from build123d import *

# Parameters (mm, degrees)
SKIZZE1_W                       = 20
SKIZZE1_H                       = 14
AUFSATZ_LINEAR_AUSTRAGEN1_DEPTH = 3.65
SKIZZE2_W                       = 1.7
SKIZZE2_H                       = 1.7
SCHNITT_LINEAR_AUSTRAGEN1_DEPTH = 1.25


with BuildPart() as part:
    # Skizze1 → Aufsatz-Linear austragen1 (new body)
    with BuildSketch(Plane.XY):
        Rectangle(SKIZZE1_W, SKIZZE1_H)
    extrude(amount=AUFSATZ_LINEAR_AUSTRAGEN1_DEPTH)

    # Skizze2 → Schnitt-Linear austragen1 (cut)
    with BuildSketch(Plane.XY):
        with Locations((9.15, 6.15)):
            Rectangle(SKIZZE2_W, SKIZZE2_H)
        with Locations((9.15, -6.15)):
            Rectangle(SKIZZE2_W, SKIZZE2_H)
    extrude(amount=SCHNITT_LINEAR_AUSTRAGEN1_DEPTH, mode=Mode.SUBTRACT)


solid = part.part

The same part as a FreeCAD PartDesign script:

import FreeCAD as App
import Part
import Sketcher

doc = App.newDocument("Part")
params = doc.addObject("Spreadsheet::Sheet", "Params")
for row, (alias, value) in enumerate([
    ("sketch1_width", "20 mm"),
    ("sketch1_height", "14 mm"),
    ("pad1_length", "3.65 mm"),
    ("sketch2_width", "1.7 mm"),
    ("pocket1_length", "1.25 mm"),
], start=1):
    params.set(f"A{row}", alias)
    params.set(f"B{row}", "=" + value)
    params.setAlias(f"B{row}", alias)

body = doc.addObject("PartDesign::Body", "Body")

sketch1 = doc.addObject("Sketcher::SketchObject", "Sketch")
body.addObject(sketch1)
sketch1.AttachmentSupport = (doc.XY_Plane, [""])
sketch1.MapMode = "FlatFace"
sketch1.addGeometry([
    Part.LineSegment(App.Vector(-10, 7, 0), App.Vector(-10, -7, 0)),
    Part.LineSegment(App.Vector(-10, -7, 0), App.Vector(10, -7, 0)),
    Part.LineSegment(App.Vector(10, -7, 0), App.Vector(10, 7, 0)),
    Part.LineSegment(App.Vector(10, 7, 0), App.Vector(-10, 7, 0)),
], False)
sketch1.addConstraint([
    Sketcher.Constraint("Coincident", 0, 2, 1, 1),
    Sketcher.Constraint("Coincident", 1, 2, 2, 1),
    Sketcher.Constraint("Coincident", 2, 2, 3, 1),
    Sketcher.Constraint("Coincident", 3, 2, 0, 1),
    Sketcher.Constraint("Vertical", 0),
    Sketcher.Constraint("Horizontal", 1),
    Sketcher.Constraint("Vertical", 2),
    Sketcher.Constraint("Horizontal", 3),
    Sketcher.Constraint("Symmetric", 0, 2, 2, 2, -1, 1),
    Sketcher.Constraint("DistanceX", 1, 1, 1, 2, 20.0),
    Sketcher.Constraint("DistanceY", 0, 2, 0, 1, 14.0),
])
sketch1.setExpression("Constraints[9]", "Params.sketch1_width")
sketch1.setExpression("Constraints[10]", "Params.sketch1_height")
pad1 = doc.addObject("PartDesign::Pad", "Pad")
body.addObject(pad1)
pad1.Profile = sketch1
pad1.setExpression("Length", "Params.pad1_length")

sketch2 = doc.addObject("Sketcher::SketchObject", "Sketch001")
body.addObject(sketch2)
sketch2.AttachmentSupport = (doc.XY_Plane, [""])
sketch2.MapMode = "FlatFace"
sketch2.addGeometry([
    Part.LineSegment(App.Vector(8.3, 7, 0), App.Vector(8.3, 5.3, 0)),
    Part.LineSegment(App.Vector(8.3, 5.3, 0), App.Vector(10, 5.3, 0)),
    Part.LineSegment(App.Vector(10, 5.3, 0), App.Vector(10, 7, 0)),
    Part.LineSegment(App.Vector(10, 7, 0), App.Vector(8.3, 7, 0)),
    Part.LineSegment(App.Vector(8.3, -5.3, 0), App.Vector(8.3, -7, 0)),
    Part.LineSegment(App.Vector(8.3, -7, 0), App.Vector(10, -7, 0)),
    Part.LineSegment(App.Vector(10, -7, 0), App.Vector(10, -5.3, 0)),
    Part.LineSegment(App.Vector(10, -5.3, 0), App.Vector(8.3, -5.3, 0)),
], False)
sketch2.addConstraint([
    Sketcher.Constraint("Coincident", 0, 2, 1, 1),
    Sketcher.Constraint("Coincident", 1, 2, 2, 1),
    Sketcher.Constraint("Coincident", 2, 2, 3, 1),
    Sketcher.Constraint("Coincident", 3, 2, 0, 1),
    Sketcher.Constraint("Coincident", 4, 2, 5, 1),
    Sketcher.Constraint("Coincident", 5, 2, 6, 1),
    Sketcher.Constraint("Coincident", 6, 2, 7, 1),
    Sketcher.Constraint("Coincident", 7, 2, 4, 1),
    Sketcher.Constraint("Vertical", 0),
    Sketcher.Constraint("Horizontal", 1),
    Sketcher.Constraint("Vertical", 2),
    Sketcher.Constraint("Horizontal", 3),
    Sketcher.Constraint("Vertical", 4),
    Sketcher.Constraint("Horizontal", 5),
    Sketcher.Constraint("Vertical", 6),
    Sketcher.Constraint("Horizontal", 7),
    Sketcher.Constraint("Symmetric", 3, 2, 4, 2, -1),
    Sketcher.Constraint("Symmetric", 1, 2, 6, 2, -1),
    Sketcher.Constraint("Equal", 7, 0),
    Sketcher.Constraint("DistanceX", 1, 1, 1, 2, 1.7),
    Sketcher.Constraint("DistanceX", -1, 1, 1, 2, 10.0),
    Sketcher.Constraint("DistanceY", -1, 1, 2, 2, 7.0),
])
sketch2.setExpression("Constraints[19]", "Params.sketch2_width")
pocket1 = doc.addObject("PartDesign::Pocket", "Pocket")
body.addObject(pocket1)
pocket1.Profile = sketch2
pocket1.setExpression("Length", "Params.pocket1_length")
pocket1.Reversed = True

doc.recompute()
